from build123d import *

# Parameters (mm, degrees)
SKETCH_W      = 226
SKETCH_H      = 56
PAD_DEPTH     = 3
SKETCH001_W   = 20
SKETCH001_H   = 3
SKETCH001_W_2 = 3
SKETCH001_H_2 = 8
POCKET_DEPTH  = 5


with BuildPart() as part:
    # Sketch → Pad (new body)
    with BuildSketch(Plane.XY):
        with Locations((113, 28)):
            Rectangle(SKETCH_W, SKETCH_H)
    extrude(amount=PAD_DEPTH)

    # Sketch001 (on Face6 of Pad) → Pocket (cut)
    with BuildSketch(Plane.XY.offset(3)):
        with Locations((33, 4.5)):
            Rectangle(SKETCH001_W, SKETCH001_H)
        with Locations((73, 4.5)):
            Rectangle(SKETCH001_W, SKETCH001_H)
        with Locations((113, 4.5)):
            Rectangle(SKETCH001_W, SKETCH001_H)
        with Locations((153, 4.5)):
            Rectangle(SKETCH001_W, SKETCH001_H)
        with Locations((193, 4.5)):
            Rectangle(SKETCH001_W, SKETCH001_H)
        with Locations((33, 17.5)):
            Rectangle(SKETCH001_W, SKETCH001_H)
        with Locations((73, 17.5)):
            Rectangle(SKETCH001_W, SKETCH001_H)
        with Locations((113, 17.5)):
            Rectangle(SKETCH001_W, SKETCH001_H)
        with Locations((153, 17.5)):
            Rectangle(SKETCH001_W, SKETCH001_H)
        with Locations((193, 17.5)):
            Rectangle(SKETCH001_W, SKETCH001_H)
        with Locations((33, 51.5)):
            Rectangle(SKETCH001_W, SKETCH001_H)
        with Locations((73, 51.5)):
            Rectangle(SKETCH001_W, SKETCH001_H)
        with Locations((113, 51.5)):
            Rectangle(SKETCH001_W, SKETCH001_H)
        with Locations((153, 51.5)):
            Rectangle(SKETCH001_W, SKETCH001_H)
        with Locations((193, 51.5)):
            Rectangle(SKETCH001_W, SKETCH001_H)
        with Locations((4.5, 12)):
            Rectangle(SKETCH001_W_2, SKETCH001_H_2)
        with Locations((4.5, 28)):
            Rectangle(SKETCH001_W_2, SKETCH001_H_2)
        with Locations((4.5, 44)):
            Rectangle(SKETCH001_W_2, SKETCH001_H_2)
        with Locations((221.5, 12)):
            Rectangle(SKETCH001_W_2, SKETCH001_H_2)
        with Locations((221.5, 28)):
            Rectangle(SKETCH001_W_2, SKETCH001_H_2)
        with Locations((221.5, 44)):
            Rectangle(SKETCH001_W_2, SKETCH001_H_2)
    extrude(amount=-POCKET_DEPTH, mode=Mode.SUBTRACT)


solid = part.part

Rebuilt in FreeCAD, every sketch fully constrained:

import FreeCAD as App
import Part
import Sketcher
from FreeCAD import Vector


def add_polygon(sketch, points):
    """Adds a closed chain of lines whose ends are joined by coincident constraints."""
    first, n = sketch.GeometryCount, len(points)
    for a, b in zip(points, points[1:] + points[:1]):
        sketch.addGeometry(Part.LineSegment(App.Vector(*a, 0), App.Vector(*b, 0)), False)
    for i in range(n):
        sketch.addConstraint(Sketcher.Constraint("Coincident", first + i, 2, first + (i + 1) % n, 1))

doc = App.newDocument("Part")
body = doc.addObject("PartDesign::Body", "Body")

# Sketch on XY plane
sketch1 = doc.addObject("Sketcher::SketchObject", "Sketch")
body.addObject(sketch1)
sketch1.AttachmentSupport = (doc.XY_Plane, [""])
sketch1.MapMode = "FlatFace"
add_polygon(sketch1, [(0, 56), (0, 0), (226, 0), (226, 56)])  # lines 0-3
sketch1.addConstraint(Sketcher.Constraint("Vertical", 0))
sketch1.addConstraint(Sketcher.Constraint("Horizontal", 1))
sketch1.addConstraint(Sketcher.Constraint("Vertical", 2))
sketch1.addConstraint(Sketcher.Constraint("Horizontal", 3))
sketch1.addConstraint(Sketcher.Constraint("Coincident", 0, 2, -1, 1))
sketch1.addConstraint(Sketcher.Constraint("DistanceX", 1, 1, 1, 2, 226.0))
sketch1.addConstraint(Sketcher.Constraint("DistanceY", 0, 2, 0, 1, 56.0))
pad1 = doc.addObject("PartDesign::Pad", "Pad")
body.addObject(pad1)
pad1.Profile = sketch1
pad1.Length = 3

# Sketch on XY plane
sketch2 = doc.addObject("Sketcher::SketchObject", "Sketch001")
body.addObject(sketch2)
sketch2.AttachmentSupport = (doc.XY_Plane, [""])
sketch2.MapMode = "FlatFace"
sketch2.AttachmentOffset = App.Placement(Vector(0, 0, 3), App.Rotation())
add_polygon(sketch2, [(23, 6), (23, 3), (43, 3), (43, 6)])  # lines 0-3
add_polygon(sketch2, [(63, 6), (63, 3), (83, 3), (83, 6)])  # lines 4-7
add_polygon(sketch2, [(103, 6), (103, 3), (123, 3), (123, 6)])  # lines 8-11
add_polygon(sketch2, [(143, 6), (143, 3), (163, 3), (163, 6)])  # lines 12-15
add_polygon(sketch2, [(183, 6), (183, 3), (203, 3), (203, 6)])  # lines 16-19
add_polygon(sketch2, [(23, 19), (23, 16), (43, 16), (43, 19)])  # lines 20-23
add_polygon(sketch2, [(63, 19), (63, 16), (83, 16), (83, 19)])  # lines 24-27
add_polygon(sketch2, [(103, 19), (103, 16), (123, 16), (123, 19)])  # lines 28-31
add_polygon(sketch2, [(143, 19), (143, 16), (163, 16), (163, 19)])  # lines 32-35
add_polygon(sketch2, [(183, 19), (183, 16), (203, 16), (203, 19)])  # lines 36-39
add_polygon(sketch2, [(23, 53), (23, 50), (43, 50), (43, 53)])  # lines 40-43
add_polygon(sketch2, [(63, 53), (63, 50), (83, 50), (83, 53)])  # lines 44-47
add_polygon(sketch2, [(103, 53), (103, 50), (123, 50), (123, 53)])  # lines 48-51
add_polygon(sketch2, [(143, 53), (143, 50), (163, 50), (163, 53)])  # lines 52-55
add_polygon(sketch2, [(183, 53), (183, 50), (203, 50), (203, 53)])  # lines 56-59
add_polygon(sketch2, [(3, 16), (3, 8), (6, 8), (6, 16)])  # lines 60-63
add_polygon(sketch2, [(3, 32), (3, 24), (6, 24), (6, 32)])  # lines 64-67
add_polygon(sketch2, [(3, 48), (3, 40), (6, 40), (6, 48)])  # lines 68-71
add_polygon(sketch2, [(220, 16), (220, 8), (223, 8), (223, 16)])  # lines 72-75
add_polygon(sketch2, [(220, 32), (220, 24), (223, 24), (223, 32)])  # lines 76-79
add_polygon(sketch2, [(220, 48), (220, 40), (223, 40), (223, 48)])  # lines 80-83
sketch2.addConstraint(Sketcher.Constraint("Vertical", 0))
sketch2.addConstraint(Sketcher.Constraint("Horizontal", 1))
sketch2.addConstraint(Sketcher.Constraint("Vertical", 2))
sketch2.addConstraint(Sketcher.Constraint("Horizontal", 3))
sketch2.addConstraint(Sketcher.Constraint("Vertical", 4))
sketch2.addConstraint(Sketcher.Constraint("Horizontal", 5))
sketch2.addConstraint(Sketcher.Constraint("Vertical", 6))
sketch2.addConstraint(Sketcher.Constraint("Horizontal", 7))
sketch2.addConstraint(Sketcher.Constraint("Vertical", 8))
sketch2.addConstraint(Sketcher.Constraint("Horizontal", 9))
sketch2.addConstraint(Sketcher.Constraint("Vertical", 10))
sketch2.addConstraint(Sketcher.Constraint("Horizontal", 11))
sketch2.addConstraint(Sketcher.Constraint("Vertical", 12))
sketch2.addConstraint(Sketcher.Constraint("Horizontal", 13))
sketch2.addConstraint(Sketcher.Constraint("Vertical", 14))
sketch2.addConstraint(Sketcher.Constraint("Horizontal", 15))
sketch2.addConstraint(Sketcher.Constraint("Vertical", 16))
sketch2.addConstraint(Sketcher.Constraint("Horizontal", 17))
sketch2.addConstraint(Sketcher.Constraint("Vertical", 18))
sketch2.addConstraint(Sketcher.Constraint("Horizontal", 19))
sketch2.addConstraint(Sketcher.Constraint("Vertical", 20))
sketch2.addConstraint(Sketcher.Constraint("Horizontal", 21))
sketch2.addConstraint(Sketcher.Constraint("Vertical", 22))
sketch2.addConstraint(Sketcher.Constraint("Horizontal", 23))
sketch2.addConstraint(Sketcher.Constraint("Vertical", 24))
sketch2.addConstraint(Sketcher.Constraint("Horizontal", 25))
sketch2.addConstraint(Sketcher.Constraint("Vertical", 26))
sketch2.addConstraint(Sketcher.Constraint("Horizontal", 27))
sketch2.addConstraint(Sketcher.Constraint("Vertical", 28))
sketch2.addConstraint(Sketcher.Constraint("Horizontal", 29))
sketch2.addConstraint(Sketcher.Constraint("Vertical", 30))
sketch2.addConstraint(Sketcher.Constraint("Horizontal", 31))
sketch2.addConstraint(Sketcher.Constraint("Vertical", 32))
sketch2.addConstraint(Sketcher.Constraint("Horizontal", 33))
sketch2.addConstraint(Sketcher.Constraint("Vertical", 34))
sketch2.addConstraint(Sketcher.Constraint("Horizontal", 35))
sketch2.addConstraint(Sketcher.Constraint("Vertical", 36))
sketch2.addConstraint(Sketcher.Constraint("Horizontal", 37))
sketch2.addConstraint(Sketcher.Constraint("Vertical", 38))
sketch2.addConstraint(Sketcher.Constraint("Horizontal", 39))
sketch2.addConstraint(Sketcher.Constraint("Vertical", 40))
sketch2.addConstraint(Sketcher.Constraint("Horizontal", 41))
sketch2.addConstraint(Sketcher.Constraint("Vertical", 42))
sketch2.addConstraint(Sketcher.Constraint("Horizontal", 43))
sketch2.addConstraint(Sketcher.Constraint("Vertical", 44))
sketch2.addConstraint(Sketcher.Constraint("Horizontal", 45))
sketch2.addConstraint(Sketcher.Constraint("Vertical", 46))
sketch2.addConstraint(Sketcher.Constraint("Horizontal", 47))
sketch2.addConstraint(Sketcher.Constraint("Vertical", 48))
sketch2.addConstraint(Sketcher.Constraint("Horizontal", 49))
sketch2.addConstraint(Sketcher.Constraint("Vertical", 50))
sketch2.addConstraint(Sketcher.Constraint("Horizontal", 51))
sketch2.addConstraint(Sketcher.Constraint("Vertical", 52))
sketch2.addConstraint(Sketcher.Constraint("Horizontal", 53))
sketch2.addConstraint(Sketcher.Constraint("Vertical", 54))
sketch2.addConstraint(Sketcher.Constraint("Horizontal", 55))
sketch2.addConstraint(Sketcher.Constraint("Vertical", 56))
sketch2.addConstraint(Sketcher.Constraint("Horizontal", 57))
sketch2.addConstraint(Sketcher.Constraint("Vertical", 58))
sketch2.addConstraint(Sketcher.Constraint("Horizontal", 59))
sketch2.addConstraint(Sketcher.Constraint("Vertical", 60))
sketch2.addConstraint(Sketcher.Constraint("Horizontal", 61))
sketch2.addConstraint(Sketcher.Constraint("Vertical", 62))
sketch2.addConstraint(Sketcher.Constraint("Horizontal", 63))
sketch2.addConstraint(Sketcher.Constraint("Vertical", 64))
sketch2.addConstraint(Sketcher.Constraint("Horizontal", 65))
sketch2.addConstraint(Sketcher.Constraint("Vertical", 66))
sketch2.addConstraint(Sketcher.Constraint("Horizontal", 67))
sketch2.addConstraint(Sketcher.Constraint("Vertical", 68))
sketch2.addConstraint(Sketcher.Constraint("Horizontal", 69))
sketch2.addConstraint(Sketcher.Constraint("Vertical", 70))
sketch2.addConstraint(Sketcher.Constraint("Horizontal", 71))
sketch2.addConstraint(Sketcher.Constraint("Vertical", 72))
sketch2.addConstraint(Sketcher.Constraint("Horizontal", 73))
sketch2.addConstraint(Sketcher.Constraint("Vertical", 74))
sketch2.addConstraint(Sketcher.Constraint("Horizontal", 75))
sketch2.addConstraint(Sketcher.Constraint("Vertical", 76))
sketch2.addConstraint(Sketcher.Constraint("Horizontal", 77))
sketch2.addConstraint(Sketcher.Constraint("Vertical", 78))
sketch2.addConstraint(Sketcher.Constraint("Horizontal", 79))
sketch2.addConstraint(Sketcher.Constraint("Vertical", 80))
sketch2.addConstraint(Sketcher.Constraint("Horizontal", 81))
sketch2.addConstraint(Sketcher.Constraint("Vertical", 82))
sketch2.addConstraint(Sketcher.Constraint("Horizontal", 83))
sketch2.addConstraint(Sketcher.Constraint("Horizontal", 1, 2, 4, 2))
sketch2.addConstraint(Sketcher.Constraint("Horizontal", 3, 2, 6, 2))
sketch2.addConstraint(Sketcher.Constraint("Horizontal", 5, 2, 8, 2))
sketch2.addConstraint(Sketcher.Constraint("Horizontal", 7, 2, 10, 2))
sketch2.addConstraint(Sketcher.Constraint("Horizontal", 9, 2, 12, 2))
sketch2.addConstraint(Sketcher.Constraint("Horizontal", 11, 2, 14, 2))
sketch2.addConstraint(Sketcher.Constraint("Horizontal", 13, 2, 16, 2))
sketch2.addConstraint(Sketcher.Constraint("Horizontal", 15, 2, 18, 2))
sketch2.addConstraint(Sketcher.Constraint("Horizontal", 21, 2, 24, 2))
sketch2.addConstraint(Sketcher.Constraint("Horizontal", 23, 2, 26, 2))
sketch2.addConstraint(Sketcher.Constraint("Horizontal", 25, 2, 28, 2))
sketch2.addConstraint(Sketcher.Constraint("Horizontal", 27, 2, 30, 2))
sketch2.addConstraint(Sketcher.Constraint("Horizontal", 29, 2, 32, 2))
sketch2.addConstraint(Sketcher.Constraint("Horizontal", 31, 2, 34, 2))
sketch2.addConstraint(Sketcher.Constraint("Horizontal", 33, 2, 36, 2))
sketch2.addConstraint(Sketcher.Constraint("Horizontal", 35, 2, 38, 2))
sketch2.addConstraint(Sketcher.Constraint("Horizontal", 41, 2, 44, 2))
sketch2.addConstraint(Sketcher.Constraint("Horizontal", 43, 2, 46, 2))
sketch2.addConstraint(Sketcher.Constraint("Horizontal", 45, 2, 48, 2))
sketch2.addConstraint(Sketcher.Constraint("Horizontal", 47, 2, 50, 2))
sketch2.addConstraint(Sketcher.Constraint("Horizontal", 49, 2, 52, 2))
sketch2.addConstraint(Sketcher.Constraint("Horizontal", 51, 2, 54, 2))
sketch2.addConstraint(Sketcher.Constraint("Horizontal", 53, 2, 56, 2))
sketch2.addConstraint(Sketcher.Constraint("Horizontal", 55, 2, 58, 2))
sketch2.addConstraint(Sketcher.Constraint("Horizontal", 37, 2, 62, 2))
sketch2.addConstraint(Sketcher.Constraint("Horizontal", 61, 2, 72, 2))
sketch2.addConstraint(Sketcher.Constraint("Horizontal", 63, 2, 74, 2))
sketch2.addConstraint(Sketcher.Constraint("Horizontal", 65, 2, 76, 2))
sketch2.addConstraint(Sketcher.Constraint("Horizontal", 67, 2, 78, 2))
sketch2.addConstraint(Sketcher.Constraint("Horizontal", 69, 2, 80, 2))
sketch2.addConstraint(Sketcher.Constraint("Horizontal", 71, 2, 82, 2))
sketch2.addConstraint(Sketcher.Constraint("Vertical", 3, 2, 20, 2))
sketch2.addConstraint(Sketcher.Constraint("Vertical", 2, 2, 21, 2))
sketch2.addConstraint(Sketcher.Constraint("Vertical", 7, 2, 24, 2))
sketch2.addConstraint(Sketcher.Constraint("Vertical", 6, 2, 25, 2))
sketch2.addConstraint(Sketcher.Constraint("Vertical", 11, 2, 28, 2))
sketch2.addConstraint(Sketcher.Constraint("Vertical", 10, 2, 29, 2))
sketch2.addConstraint(Sketcher.Constraint("Vertical", 15, 2, 32, 2))
sketch2.addConstraint(Sketcher.Constraint("Vertical", 14, 2, 33, 2))
sketch2.addConstraint(Sketcher.Constraint("Vertical", 19, 2, 36, 2))
sketch2.addConstraint(Sketcher.Constraint("Vertical", 18, 2, 37, 2))
sketch2.addConstraint(Sketcher.Constraint("Vertical", 23, 2, 40, 2))
sketch2.addConstraint(Sketcher.Constraint("Vertical", 22, 2, 41, 2))
sketch2.addConstraint(Sketcher.Constraint("Vertical", 27, 2, 44, 2))
sketch2.addConstraint(Sketcher.Constraint("Vertical", 26, 2, 45, 2))
sketch2.addConstraint(Sketcher.Constraint("Vertical", 31, 2, 48, 2))
sketch2.addConstraint(Sketcher.Constraint("Vertical", 30, 2, 49, 2))
sketch2.addConstraint(Sketcher.Constraint("Vertical", 35, 2, 52, 2))
sketch2.addConstraint(Sketcher.Constraint("Vertical", 34, 2, 53, 2))
sketch2.addConstraint(Sketcher.Constraint("Vertical", 39, 2, 56, 2))
sketch2.addConstraint(Sketcher.Constraint("Vertical", 38, 2, 57, 2))
sketch2.addConstraint(Sketcher.Constraint("Vertical", 63, 2, 64, 2))
sketch2.addConstraint(Sketcher.Constraint("Vertical", 62, 2, 65, 2))
sketch2.addConstraint(Sketcher.Constraint("Vertical", 67, 2, 68, 2))
sketch2.addConstraint(Sketcher.Constraint("Vertical", 66, 2, 69, 2))
sketch2.addConstraint(Sketcher.Constraint("Vertical", 75, 2, 76, 2))
sketch2.addConstraint(Sketcher.Constraint("Vertical", 74, 2, 77, 2))
sketch2.addConstraint(Sketcher.Constraint("Vertical", 79, 2, 80, 2))
sketch2.addConstraint(Sketcher.Constraint("Vertical", 78, 2, 81, 2))
sketch2.addConstraint(Sketcher.Constraint("Equal", 3, 5))
sketch2.addConstraint(Sketcher.Constraint("Equal", 7, 9))
sketch2.addConstraint(Sketcher.Constraint("Equal", 11, 13))
sketch2.addConstraint(Sketcher.Constraint("Equal", 15, 17))
sketch2.addConstraint(Sketcher.Constraint("Equal", 71, 73))
sketch2.addConstraint(Sketcher.Constraint("Equal", 83, 0))
sketch2.addConstraint(Sketcher.Constraint("Equal", 18, 20))
sketch2.addConstraint(Sketcher.Constraint("Equal", 38, 40))
sketch2.addConstraint(Sketcher.Constraint("Equal", 62, 64))
sketch2.addConstraint(Sketcher.Constraint("Equal", 66, 68))
sketch2.addConstraint(Sketcher.Constraint("DistanceX", 1, 1, 1, 2, 20.0))
sketch2.addConstraint(Sketcher.Constraint("DistanceX", 61, 1, 61, 2, 3.0))
sketch2.addConstraint(Sketcher.Constraint("DistanceY", 60, 2, 60, 1, 8.0))
sketch2.addConstraint(Sketcher.Constraint("DistanceX", -1, 1, 0, 2, 23.0))
sketch2.addConstraint(Sketcher.Constraint("DistanceY", -1, 1, 0, 2, 3.0))
sketch2.addConstraint(Sketcher.Constraint("DistanceX", -1, 1, 4, 2, 63.0))
sketch2.addConstraint(Sketcher.Constraint("DistanceX", -1, 1, 8, 2, 103.0))
sketch2.addConstraint(Sketcher.Constraint("DistanceX", -1, 1, 12, 2, 143.0))
sketch2.addConstraint(Sketcher.Constraint("DistanceX", -1, 1, 16, 2, 183.0))
sketch2.addConstraint(Sketcher.Constraint("DistanceY", -1, 1, 20, 2, 16.0))
sketch2.addConstraint(Sketcher.Constraint("DistanceY", -1, 1, 40, 2, 50.0))
sketch2.addConstraint(Sketcher.Constraint("DistanceX", -1, 1, 60, 2, 3.0))
sketch2.addConstraint(Sketcher.Constraint("DistanceY", -1, 1, 64, 2, 24.0))
sketch2.addConstraint(Sketcher.Constraint("DistanceY", -1, 1, 68, 2, 40.0))
sketch2.addConstraint(Sketcher.Constraint("DistanceX", -1, 1, 72, 2, 220.0))
pocket1 = doc.addObject("PartDesign::Pocket", "Pocket")
body.addObject(pocket1)
pocket1.Profile = sketch2
pocket1.Length = 5

doc.recompute()
